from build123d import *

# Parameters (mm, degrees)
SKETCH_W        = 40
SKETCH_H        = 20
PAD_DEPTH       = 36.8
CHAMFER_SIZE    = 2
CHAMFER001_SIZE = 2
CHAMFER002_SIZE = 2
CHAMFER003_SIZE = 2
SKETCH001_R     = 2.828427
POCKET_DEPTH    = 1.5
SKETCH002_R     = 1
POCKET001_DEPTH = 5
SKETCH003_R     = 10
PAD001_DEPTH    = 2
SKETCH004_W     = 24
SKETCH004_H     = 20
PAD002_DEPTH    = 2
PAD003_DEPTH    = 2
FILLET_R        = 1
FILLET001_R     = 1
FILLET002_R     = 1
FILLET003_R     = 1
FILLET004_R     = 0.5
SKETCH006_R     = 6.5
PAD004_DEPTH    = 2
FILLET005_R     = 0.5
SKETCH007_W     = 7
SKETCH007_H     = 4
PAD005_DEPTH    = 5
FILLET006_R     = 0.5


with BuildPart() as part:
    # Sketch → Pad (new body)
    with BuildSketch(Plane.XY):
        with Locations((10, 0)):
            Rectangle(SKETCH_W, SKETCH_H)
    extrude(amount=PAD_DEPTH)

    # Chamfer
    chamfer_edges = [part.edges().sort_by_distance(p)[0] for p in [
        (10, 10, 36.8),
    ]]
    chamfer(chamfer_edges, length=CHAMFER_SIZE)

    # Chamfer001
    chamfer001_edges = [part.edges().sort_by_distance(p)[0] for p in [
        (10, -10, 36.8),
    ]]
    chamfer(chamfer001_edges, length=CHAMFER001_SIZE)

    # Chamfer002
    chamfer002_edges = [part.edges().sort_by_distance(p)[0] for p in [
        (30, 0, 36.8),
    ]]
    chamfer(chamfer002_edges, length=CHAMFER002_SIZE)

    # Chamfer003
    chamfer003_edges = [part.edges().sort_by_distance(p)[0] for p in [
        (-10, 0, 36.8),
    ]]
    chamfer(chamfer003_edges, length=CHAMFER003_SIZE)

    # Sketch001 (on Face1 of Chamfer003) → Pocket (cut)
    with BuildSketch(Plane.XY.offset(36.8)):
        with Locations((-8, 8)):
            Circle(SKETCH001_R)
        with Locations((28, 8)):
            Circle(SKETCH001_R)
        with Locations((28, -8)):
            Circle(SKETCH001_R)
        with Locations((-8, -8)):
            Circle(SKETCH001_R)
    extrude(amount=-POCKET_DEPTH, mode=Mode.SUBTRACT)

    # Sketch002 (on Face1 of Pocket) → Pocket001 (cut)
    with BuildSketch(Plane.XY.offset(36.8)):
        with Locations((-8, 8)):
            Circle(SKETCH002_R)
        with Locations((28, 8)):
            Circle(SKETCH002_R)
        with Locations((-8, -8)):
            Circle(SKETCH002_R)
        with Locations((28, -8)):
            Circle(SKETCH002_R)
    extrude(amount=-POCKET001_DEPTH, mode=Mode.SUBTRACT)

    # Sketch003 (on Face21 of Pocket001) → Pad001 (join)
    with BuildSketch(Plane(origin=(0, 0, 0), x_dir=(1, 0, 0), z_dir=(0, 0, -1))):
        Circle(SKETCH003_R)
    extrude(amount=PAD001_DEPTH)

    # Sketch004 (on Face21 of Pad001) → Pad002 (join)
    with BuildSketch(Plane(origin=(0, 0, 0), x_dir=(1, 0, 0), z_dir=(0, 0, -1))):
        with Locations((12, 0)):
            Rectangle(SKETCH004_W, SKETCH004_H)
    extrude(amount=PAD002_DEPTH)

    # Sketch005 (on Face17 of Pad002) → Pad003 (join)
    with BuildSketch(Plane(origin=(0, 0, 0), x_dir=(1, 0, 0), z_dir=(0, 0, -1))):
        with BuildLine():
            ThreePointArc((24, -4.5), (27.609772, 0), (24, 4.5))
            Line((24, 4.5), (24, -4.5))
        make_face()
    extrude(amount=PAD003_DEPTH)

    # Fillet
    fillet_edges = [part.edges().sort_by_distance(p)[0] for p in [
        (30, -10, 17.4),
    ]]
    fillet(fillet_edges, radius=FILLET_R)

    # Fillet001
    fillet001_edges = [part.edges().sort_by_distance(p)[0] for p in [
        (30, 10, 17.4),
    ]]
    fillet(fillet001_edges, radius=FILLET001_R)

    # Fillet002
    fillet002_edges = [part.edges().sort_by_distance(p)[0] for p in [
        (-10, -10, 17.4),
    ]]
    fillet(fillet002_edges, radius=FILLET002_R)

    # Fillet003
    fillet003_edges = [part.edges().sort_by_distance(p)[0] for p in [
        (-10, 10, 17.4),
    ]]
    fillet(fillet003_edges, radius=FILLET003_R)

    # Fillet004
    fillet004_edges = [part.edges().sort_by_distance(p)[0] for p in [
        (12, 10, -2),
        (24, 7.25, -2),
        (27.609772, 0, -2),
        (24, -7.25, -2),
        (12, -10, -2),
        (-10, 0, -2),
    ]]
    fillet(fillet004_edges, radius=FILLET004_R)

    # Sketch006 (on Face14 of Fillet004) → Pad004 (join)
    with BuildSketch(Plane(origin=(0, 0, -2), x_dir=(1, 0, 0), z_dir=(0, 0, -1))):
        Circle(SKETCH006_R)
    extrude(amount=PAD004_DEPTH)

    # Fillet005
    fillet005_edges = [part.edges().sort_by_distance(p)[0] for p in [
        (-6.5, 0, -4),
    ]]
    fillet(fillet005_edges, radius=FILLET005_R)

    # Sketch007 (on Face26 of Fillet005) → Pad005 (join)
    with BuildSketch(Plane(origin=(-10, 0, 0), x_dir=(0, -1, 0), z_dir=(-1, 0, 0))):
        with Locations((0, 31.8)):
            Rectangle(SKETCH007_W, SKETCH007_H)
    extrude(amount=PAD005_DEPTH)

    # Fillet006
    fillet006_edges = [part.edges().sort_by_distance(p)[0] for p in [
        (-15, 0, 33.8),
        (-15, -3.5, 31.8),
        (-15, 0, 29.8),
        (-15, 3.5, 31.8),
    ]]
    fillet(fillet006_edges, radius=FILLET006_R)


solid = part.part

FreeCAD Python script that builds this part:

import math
import FreeCAD as App
import Part
import Sketcher

V = App.Vector


def edges_at(feature, points):
    """Names of the edges that pass closest to the given points."""
    edges = feature.Shape.Edges
    near = lambda p: min(range(len(edges)), key=lambda i: edges[i].distToShape(Part.Vertex(*p))[0])
    return sorted({f"Edge{near(p) + 1}" for p in points})

doc = App.newDocument("Part")
body = doc.addObject("PartDesign::Body", "Body")

sketch1 = body.newObject("Sketcher::SketchObject", "Sketch")
sketch1.AttachmentSupport = (doc.getObject("XY_Plane"), [""])
sketch1.MapMode = "FlatFace"
sketch1.addGeometry([
    Part.LineSegment(V(-10, 10, 0), V(-10, -10, 0)),
    Part.LineSegment(V(-10, -10, 0), V(30, -10, 0)),
    Part.LineSegment(V(30, -10, 0), V(30, 10, 0)),
    Part.LineSegment(V(30, 10, 0), V(-10, 10, 0)),
], False)
sketch1.addConstraint([
    Sketcher.Constraint("Coincident", 0, 2, 1, 1),
    Sketcher.Constraint("Coincident", 1, 2, 2, 1),
    Sketcher.Constraint("Coincident", 2, 2, 3, 1),
    Sketcher.Constraint("Coincident", 3, 2, 0, 1),
    Sketcher.Constraint("Vertical", 0),
    Sketcher.Constraint("Horizontal", 1),
    Sketcher.Constraint("Vertical", 2),
    Sketcher.Constraint("Horizontal", 3),
    Sketcher.Constraint("DistanceX", 1, 1, 1, 2, 40.0),
    Sketcher.Constraint("DistanceY", 0, 2, 0, 1, 20.0),
    Sketcher.Constraint("DistanceX", 0, 2, -1, 1, 10.0),
    Sketcher.Constraint("DistanceY", 0, 2, -1, 1, 10.0),
])
pad1 = body.newObject("PartDesign::Pad", "Pad")
pad1.Profile = sketch1
pad1.Length = 36.8
doc.recompute()

chamfer = body.newObject("PartDesign::Chamfer", "Chamfer")
chamfer.Base = (pad1, edges_at(pad1, [(10, 10, 36.8)]))
chamfer.Size = 2
doc.recompute()

chamfer2 = body.newObject("PartDesign::Chamfer", "Chamfer001")
chamfer2.Base = (chamfer, edges_at(chamfer, [(10, -10, 36.8)]))
chamfer2.Size = 2
doc.recompute()

chamfer3 = body.newObject("PartDesign::Chamfer", "Chamfer002")
chamfer3.Base = (chamfer2, edges_at(chamfer2, [(30, 0, 36.8)]))
chamfer3.Size = 2
doc.recompute()

chamfer4 = body.newObject("PartDesign::Chamfer", "Chamfer003")
chamfer4.Base = (chamfer3, edges_at(chamfer3, [(-10, 0, 36.8)]))
chamfer4.Size = 2

sketch2 = body.newObject("Sketcher::SketchObject", "Sketch001")
sketch2.AttachmentSupport = (doc.getObject("XY_Plane"), [""])
sketch2.MapMode = "FlatFace"
sketch2.AttachmentOffset = App.Placement(V(0, 0, 36.8), App.Rotation())
sketch2.addGeometry([
    Part.Circle(V(-8, 8, 0), V(0, 0, 1), 2.8),
    Part.Circle(V(28, 8, 0), V(0, 0, 1), 2.8),
    Part.Circle(V(28, -8, 0), V(0, 0, 1), 2.8),
    Part.Circle(V(-8, -8, 0), V(0, 0, 1), 2.8),
], False)
sketch2.addConstraint([
    Sketcher.Constraint("Equal", 0, 1),
    Sketcher.Constraint("Equal", 1, 2),
    Sketcher.Constraint("Equal", 2, 3),
    Sketcher.Constraint("Symmetric", 1, 3, 2, 3, -1),
    Sketcher.Constraint("Symmetric", 0, 3, 3, 3, -1),
    Sketcher.Constraint("Horizontal", 0, 3, 1, 3),
    Sketcher.Constraint("DistanceX", 0, 3, -1, 1, 8.0),
    Sketcher.Constraint("DistanceY", -1, 1, 0, 3, 8.0),
    Sketcher.Constraint("DistanceX", -1, 1, 1, 3, 28.0),
    Sketcher.Constraint("Diameter", 0, 5.656854),
])
pocket1 = body.newObject("PartDesign::Pocket", "Pocket")
pocket1.Profile = sketch2
pocket1.Length = 1.5

sketch3 = body.newObject("Sketcher::SketchObject", "Sketch002")
sketch3.AttachmentSupport = (doc.getObject("XY_Plane"), [""])
sketch3.MapMode = "FlatFace"
sketch3.AttachmentOffset = App.Placement(V(0, 0, 36.8), App.Rotation())
sketch3.addGeometry([
    Part.Circle(V(-8, 8, 0), V(0, 0, 1), 1),
    Part.Circle(V(28, 8, 0), V(0, 0, 1), 1),
    Part.Circle(V(-8, -8, 0), V(0, 0, 1), 1),
    Part.Circle(V(28, -8, 0), V(0, 0, 1), 1),
], False)
sketch3.addConstraint([
    Sketcher.Constraint("Equal", 0, 1),
    Sketcher.Constraint("Equal", 1, 2),
    Sketcher.Constraint("Equal", 2, 3),
    Sketcher.Constraint("Symmetric", 0, 3, 2, 3, -1),
    Sketcher.Constraint("Symmetric", 1, 3, 3, 3, -1),
    Sketcher.Constraint("Horizontal", 0, 3, 1, 3),
    Sketcher.Constraint("Diameter", 0, 2.0),
    Sketcher.Constraint("DistanceX", 0, 3, -1, 1, 8.0),
    Sketcher.Constraint("DistanceY", -1, 1, 0, 3, 8.0),
    Sketcher.Constraint("DistanceX", -1, 1, 1, 3, 28.0),
])
pocket2 = body.newObject("PartDesign::Pocket", "Pocket001")
pocket2.Profile = sketch3
pocket2.Length = 5

sketch4 = body.newObject("Sketcher::SketchObject", "Sketch003")
sketch4.AttachmentSupport = (doc.getObject("XY_Plane"), [""])
sketch4.MapMode = "FlatFace"
sketch4.addGeometry(Part.Circle(V(0, 0, 0), V(0, 0, 1), 10), False)
sketch4.addConstraint([
    Sketcher.Constraint("Coincident", 0, 3, -1, 1),
    Sketcher.Constraint("Diameter", 0, 20.0),
])
pad2 = body.newObject("PartDesign::Pad", "Pad001")
pad2.Profile = sketch4
pad2.Length = 2
pad2.Reversed = True

sketch5 = body.newObject("Sketcher::SketchObject", "Sketch004")
sketch5.AttachmentSupport = (doc.getObject("XY_Plane"), [""])
sketch5.MapMode = "FlatFace"
sketch5.addGeometry([
    Part.LineSegment(V(0, -10, 0), V(0, 10, 0)),
    Part.LineSegment(V(0, 10, 0), V(24, 10, 0)),
    Part.LineSegment(V(24, 10, 0), V(24, -10, 0)),
    Part.LineSegment(V(24, -10, 0), V(0, -10, 0)),
], False)
sketch5.addConstraint([
    Sketcher.Constraint("Coincident", 0, 2, 1, 1),
    Sketcher.Constraint("Coincident", 1, 2, 2, 1),
    Sketcher.Constraint("Coincident", 2, 2, 3, 1),
    Sketcher.Constraint("Coincident", 3, 2, 0, 1),
    Sketcher.Constraint("Vertical", 0),
    Sketcher.Constraint("Horizontal", 1),
    Sketcher.Constraint("Vertical", 2),
    Sketcher.Constraint("Horizontal", 3),
    Sketcher.Constraint("Symmetric", 0, 2, 3, 2, -1, 1),
    Sketcher.Constraint("DistanceX", 1, 1, 1, 2, 24.0),
    Sketcher.Constraint("DistanceY", 0, 1, 0, 2, 20.0),
])
pad3 = body.newObject("PartDesign::Pad", "Pad002")
pad3.Profile = sketch5
pad3.Length = 2
pad3.Reversed = True

sketch6 = body.newObject("Sketcher::SketchObject", "Sketch005")
sketch6.AttachmentSupport = (doc.getObject("XY_Plane"), [""])
sketch6.MapMode = "FlatFace"
sketch6.addGeometry([
    Part.ArcOfCircle(Part.Circle(V(23, 0, 0), V(0, 0, 1), 4.6), math.radians(-77), math.radians(77)),
    Part.LineSegment(V(24, -4.5, 0), V(24, 4.5, 0)),
], False)
sketch6.addConstraint([
    Sketcher.Constraint("Coincident", 0, 1, 1, 1),
    Sketcher.Constraint("Coincident", 1, 2, 0, 2),
    Sketcher.Constraint("Vertical", 1),
    Sketcher.Constraint("PointOnObject", 0, 3, -1),
    Sketcher.Constraint("DistanceY", 1, 1, 1, 2, 9.0),
    Sketcher.Constraint("DistanceX", -1, 1, 0, 3, 23.0),
    Sketcher.Constraint("DistanceX", -1, 1, 0, 1, 24.0),
])
pad4 = body.newObject("PartDesign::Pad", "Pad003")
pad4.Profile = sketch6
pad4.Length = 2
pad4.Reversed = True
doc.recompute()

fillet = body.newObject("PartDesign::Fillet", "Fillet")
fillet.Base = (pad4, edges_at(pad4, [(30, -10, 17.4)]))
fillet.Radius = 1
doc.recompute()

fillet2 = body.newObject("PartDesign::Fillet", "Fillet001")
fillet2.Base = (fillet, edges_at(fillet, [(30, 10, 17.4)]))
fillet2.Radius = 1
doc.recompute()

fillet3 = body.newObject("PartDesign::Fillet", "Fillet002")
fillet3.Base = (fillet2, edges_at(fillet2, [(-10, -10, 17.4)]))
fillet3.Radius = 1
doc.recompute()

fillet4 = body.newObject("PartDesign::Fillet", "Fillet003")
fillet4.Base = (fillet3, edges_at(fillet3, [(-10, 10, 17.4)]))
fillet4.Radius = 1
doc.recompute()

fillet5 = body.newObject("PartDesign::Fillet", "Fillet004")
fillet5.Base = (fillet4, edges_at(fillet4, [
    (12, 10, -2),
    (24, 7.25, -2),
    (27.61, 0, -2),
    (24, -7.25, -2),
    (12, -10, -2),
    (-10, 0, -2),
]))
fillet5.Radius = 0.5

sketch7 = body.newObject("Sketcher::SketchObject", "Sketch006")
sketch7.AttachmentSupport = (doc.getObject("XY_Plane"), [""])
sketch7.MapMode = "FlatFace"
sketch7.AttachmentOffset = App.Placement(V(0, 0, -2), App.Rotation())
sketch7.addGeometry(Part.Circle(V(0, 0, 0), V(0, 0, 1), 6), False)
sketch7.addConstraint([
    Sketcher.Constraint("Coincident", 0, 3, -1, 1),
    Sketcher.Constraint("Diameter", 0, 13.0),
])
pad5 = body.newObject("PartDesign::Pad", "Pad004")
pad5.Profile = sketch7
pad5.Length = 2
pad5.Reversed = True
doc.recompute()

fillet6 = body.newObject("PartDesign::Fillet", "Fillet005")
fillet6.Base = (pad5, edges_at(pad5, [(-6.5, 0, -4)]))
fillet6.Radius = 0.5

sketch8 = body.newObject("Sketcher::SketchObject", "Sketch007")
sketch8.AttachmentSupport = (doc.getObject("YZ_Plane"), [""])
sketch8.MapMode = "FlatFace"
sketch8.AttachmentOffset = App.Placement(V(0, 0, -10), App.Rotation())
sketch8.addGeometry([
    Part.LineSegment(V(3.5, 33.8, 0), V(3.5, 29.8, 0)),
    Part.LineSegment(V(3.5, 29.8, 0), V(-3.5, 29.8, 0)),
    Part.LineSegment(V(-3.5, 29.8, 0), V(-3.5, 33.8, 0)),
    Part.LineSegment(V(-3.5, 33.8, 0), V(3.5, 33.8, 0)),
], False)
sketch8.addConstraint([
    Sketcher.Constraint("Coincident", 0, 2, 1, 1),
    Sketcher.Constraint("Coincident", 1, 2, 2, 1),
    Sketcher.Constraint("Coincident", 2, 2, 3, 1),
    Sketcher.Constraint("Coincident", 3, 2, 0, 1),
    Sketcher.Constraint("Vertical", 0),
    Sketcher.Constraint("Horizontal", 1),
    Sketcher.Constraint("Vertical", 2),
    Sketcher.Constraint("Horizontal", 3),
    Sketcher.Constraint("DistanceX", 1, 2, 1, 1, 7.0),
    Sketcher.Constraint("DistanceY", 0, 2, 0, 1, 4.0),
    Sketcher.Constraint("DistanceX", -1, 1, 0, 2, 3.5),
    Sketcher.Constraint("DistanceY", -1, 1, 0, 2, 29.8),
])
pad6 = body.newObject("PartDesign::Pad", "Pad005")
pad6.Profile = sketch8
pad6.Length = 5
pad6.Reversed = True
doc.recompute()

fillet7 = body.newObject("PartDesign::Fillet", "Fillet006")
fillet7.Base = (pad6, edges_at(pad6, [
    (-15, 0, 33.8),
    (-15, -3.5, 31.8),
    (-15, 0, 29.8),
    (-15, 3.5, 31.8),
]))
fillet7.Radius = 0.5

doc.recompute()
